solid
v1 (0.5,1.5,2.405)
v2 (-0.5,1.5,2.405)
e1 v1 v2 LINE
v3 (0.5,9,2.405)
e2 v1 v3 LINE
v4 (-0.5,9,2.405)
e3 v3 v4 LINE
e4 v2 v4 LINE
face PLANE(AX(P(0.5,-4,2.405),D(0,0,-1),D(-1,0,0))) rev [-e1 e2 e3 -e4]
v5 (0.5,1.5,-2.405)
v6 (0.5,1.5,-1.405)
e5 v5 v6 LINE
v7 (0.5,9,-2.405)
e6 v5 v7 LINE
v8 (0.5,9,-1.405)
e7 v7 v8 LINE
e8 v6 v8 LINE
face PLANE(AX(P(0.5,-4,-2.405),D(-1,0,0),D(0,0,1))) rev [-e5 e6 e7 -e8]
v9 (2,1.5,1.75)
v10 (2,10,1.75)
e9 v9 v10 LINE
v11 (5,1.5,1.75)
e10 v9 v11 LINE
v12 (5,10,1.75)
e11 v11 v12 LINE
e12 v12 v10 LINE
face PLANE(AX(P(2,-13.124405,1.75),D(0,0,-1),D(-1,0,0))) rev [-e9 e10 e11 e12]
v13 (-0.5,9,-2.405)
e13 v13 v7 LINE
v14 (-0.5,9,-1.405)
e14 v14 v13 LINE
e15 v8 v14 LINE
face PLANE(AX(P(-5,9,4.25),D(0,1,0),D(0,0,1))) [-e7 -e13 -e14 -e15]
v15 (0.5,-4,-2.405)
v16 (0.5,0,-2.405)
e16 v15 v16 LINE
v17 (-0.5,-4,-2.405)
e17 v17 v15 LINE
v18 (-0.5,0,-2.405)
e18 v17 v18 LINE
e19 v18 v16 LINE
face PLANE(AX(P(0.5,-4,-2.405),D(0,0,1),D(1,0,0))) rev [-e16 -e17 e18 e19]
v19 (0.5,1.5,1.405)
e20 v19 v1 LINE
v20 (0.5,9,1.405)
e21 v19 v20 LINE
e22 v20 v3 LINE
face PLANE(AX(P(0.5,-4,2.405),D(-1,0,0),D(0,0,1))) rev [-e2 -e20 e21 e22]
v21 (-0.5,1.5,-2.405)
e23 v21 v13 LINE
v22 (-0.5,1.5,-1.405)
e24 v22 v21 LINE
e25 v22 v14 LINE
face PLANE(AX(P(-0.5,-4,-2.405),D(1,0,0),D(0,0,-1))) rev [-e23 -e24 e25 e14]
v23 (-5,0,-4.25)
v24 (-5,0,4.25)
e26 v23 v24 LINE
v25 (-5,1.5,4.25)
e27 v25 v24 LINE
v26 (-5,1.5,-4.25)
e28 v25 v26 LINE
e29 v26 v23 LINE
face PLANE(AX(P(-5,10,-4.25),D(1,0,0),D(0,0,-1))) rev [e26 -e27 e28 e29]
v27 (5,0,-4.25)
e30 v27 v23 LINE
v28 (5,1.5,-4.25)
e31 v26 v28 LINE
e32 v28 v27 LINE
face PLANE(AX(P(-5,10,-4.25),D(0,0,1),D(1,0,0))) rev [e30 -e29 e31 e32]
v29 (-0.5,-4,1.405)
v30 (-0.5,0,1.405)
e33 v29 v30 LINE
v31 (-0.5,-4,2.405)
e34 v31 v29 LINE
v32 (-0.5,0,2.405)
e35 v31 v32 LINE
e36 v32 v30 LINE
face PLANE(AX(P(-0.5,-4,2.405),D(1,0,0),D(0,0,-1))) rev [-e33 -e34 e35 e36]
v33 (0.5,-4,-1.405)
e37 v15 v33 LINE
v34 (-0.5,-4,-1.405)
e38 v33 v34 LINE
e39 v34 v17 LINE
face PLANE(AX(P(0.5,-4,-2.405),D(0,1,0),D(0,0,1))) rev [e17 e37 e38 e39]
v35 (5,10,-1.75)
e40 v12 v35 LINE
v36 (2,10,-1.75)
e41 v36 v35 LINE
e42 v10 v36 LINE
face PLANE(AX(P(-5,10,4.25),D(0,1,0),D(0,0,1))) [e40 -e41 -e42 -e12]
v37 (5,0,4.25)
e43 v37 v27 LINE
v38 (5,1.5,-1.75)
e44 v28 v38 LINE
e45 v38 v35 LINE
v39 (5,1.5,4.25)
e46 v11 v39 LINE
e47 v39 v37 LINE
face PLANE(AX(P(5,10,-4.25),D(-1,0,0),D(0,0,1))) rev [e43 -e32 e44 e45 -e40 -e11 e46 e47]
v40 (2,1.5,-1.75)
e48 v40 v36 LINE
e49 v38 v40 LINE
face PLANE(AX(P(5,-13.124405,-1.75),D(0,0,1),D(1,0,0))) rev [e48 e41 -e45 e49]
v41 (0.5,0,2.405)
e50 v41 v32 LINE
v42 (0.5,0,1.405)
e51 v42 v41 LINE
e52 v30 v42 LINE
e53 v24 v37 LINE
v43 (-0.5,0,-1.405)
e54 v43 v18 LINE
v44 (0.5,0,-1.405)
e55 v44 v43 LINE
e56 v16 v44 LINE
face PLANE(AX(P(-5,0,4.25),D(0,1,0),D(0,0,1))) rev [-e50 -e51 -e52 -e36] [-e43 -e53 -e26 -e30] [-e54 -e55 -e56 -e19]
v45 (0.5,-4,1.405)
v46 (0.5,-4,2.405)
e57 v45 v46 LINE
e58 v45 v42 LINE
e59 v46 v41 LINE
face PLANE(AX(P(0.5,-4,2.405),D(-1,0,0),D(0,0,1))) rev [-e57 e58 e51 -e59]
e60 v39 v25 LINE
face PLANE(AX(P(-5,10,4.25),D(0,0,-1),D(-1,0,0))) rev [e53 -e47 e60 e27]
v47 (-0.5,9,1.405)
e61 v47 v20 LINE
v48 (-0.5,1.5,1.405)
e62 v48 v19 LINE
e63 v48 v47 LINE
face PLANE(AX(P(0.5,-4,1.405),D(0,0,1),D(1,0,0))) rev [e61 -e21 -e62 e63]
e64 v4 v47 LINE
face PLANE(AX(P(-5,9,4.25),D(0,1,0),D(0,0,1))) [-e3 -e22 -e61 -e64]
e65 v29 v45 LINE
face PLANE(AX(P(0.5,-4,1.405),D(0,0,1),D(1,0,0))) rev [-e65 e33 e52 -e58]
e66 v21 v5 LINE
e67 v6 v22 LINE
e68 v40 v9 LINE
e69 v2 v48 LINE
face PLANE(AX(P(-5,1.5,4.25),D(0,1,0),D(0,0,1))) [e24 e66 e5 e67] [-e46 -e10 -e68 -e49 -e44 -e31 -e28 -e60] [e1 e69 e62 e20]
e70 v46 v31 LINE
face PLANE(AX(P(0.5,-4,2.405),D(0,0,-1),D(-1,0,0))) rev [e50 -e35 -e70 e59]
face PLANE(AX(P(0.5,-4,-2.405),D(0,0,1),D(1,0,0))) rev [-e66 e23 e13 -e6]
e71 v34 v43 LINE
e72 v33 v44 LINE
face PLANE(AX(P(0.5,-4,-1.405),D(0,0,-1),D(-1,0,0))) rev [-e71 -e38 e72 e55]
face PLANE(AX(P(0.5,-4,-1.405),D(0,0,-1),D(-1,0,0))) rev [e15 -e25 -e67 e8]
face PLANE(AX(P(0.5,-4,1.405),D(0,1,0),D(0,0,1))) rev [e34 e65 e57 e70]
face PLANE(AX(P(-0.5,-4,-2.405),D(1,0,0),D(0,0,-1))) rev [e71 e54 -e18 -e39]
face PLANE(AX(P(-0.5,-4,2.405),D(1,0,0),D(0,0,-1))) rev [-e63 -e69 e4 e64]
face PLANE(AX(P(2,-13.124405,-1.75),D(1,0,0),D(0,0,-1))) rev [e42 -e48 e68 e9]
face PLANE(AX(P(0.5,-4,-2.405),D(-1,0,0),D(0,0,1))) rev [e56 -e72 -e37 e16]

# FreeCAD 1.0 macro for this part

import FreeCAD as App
import Part
import Sketcher
Q = App.Units.Quantity


def add_polygon(sketch, points):
    """Adds a closed chain of lines whose ends are joined by coincident constraints."""
    first, n = sketch.GeometryCount, len(points)
    for a, b in zip(points, points[1:] + points[:1]):
        sketch.addGeometry(Part.LineSegment(App.Vector(*a, 0), App.Vector(*b, 0)), False)
    for i in range(n):
        sketch.addConstraint(Sketcher.Constraint("Coincident", first + i, 2, first + (i + 1) % n, 1))

doc = App.newDocument("Part")
body = doc.addObject("PartDesign::Body", "Body")

sketch1 = body.newObject("Sketcher::SketchObject", "Sketch")
sketch1.AttachmentSupport = (doc.getObject("XZ_Plane"), [""])
sketch1.MapMode = "FlatFace"
add_polygon(sketch1, [(-5, -4), (-5, 4), (5, 4), (5, -4)])
sketch1.addConstraint(Sketcher.Constraint("Vertical", 0))
sketch1.addConstraint(Sketcher.Constraint("Horizontal", 1))
sketch1.addConstraint(Sketcher.Constraint("Vertical", 2))
sketch1.addConstraint(Sketcher.Constraint("Horizontal", 3))
sketch1.addConstraint(Sketcher.Constraint("Symmetric", 0, 2, 2, 2, -1, 1))
sketch1.addConstraint(Sketcher.Constraint("DistanceX", 1, 1, 1, 2, Q("10 mm")))
sketch1.addConstraint(Sketcher.Constraint("DistanceY", 0, 1, 0, 2, Q("8.5 mm")))
pad1 = body.newObject("PartDesign::Pad", "Pad")
pad1.Profile = sketch1
pad1.Length = 10
pad1.Reversed = True

sketch2 = body.newObject("Sketcher::SketchObject", "Sketch001")
sketch2.AttachmentSupport = (doc.getObject("XZ_Plane"), [""])
sketch2.MapMode = "FlatFace"
sketch2.AttachmentOffset = App.Placement(App.Vector(0, 0, -10), App.Rotation())
add_polygon(sketch2, [(5, 4.2), (5, 1.8), (2, 1.8), (2, -1.8), (5, -1.8), (5, -4.2), (-5, -4.2), (-5, 4.2)])
sketch2.addConstraint(Sketcher.Constraint("Vertical", 0))
sketch2.addConstraint(Sketcher.Constraint("Horizontal", 1))
sketch2.addConstraint(Sketcher.Constraint("Vertical", 2))
sketch2.addConstraint(Sketcher.Constraint("Horizontal", 3))
sketch2.addConstraint(Sketcher.Constraint("Vertical", 4))
sketch2.addConstraint(Sketcher.Constraint("Horizontal", 5))
sketch2.addConstraint(Sketcher.Constraint("Vertical", 6))
sketch2.addConstraint(Sketcher.Constraint("Horizontal", 7))
sketch2.addConstraint(Sketcher.Constraint("Symmetric", 4, 2, 6, 2, -1, 1))
sketch2.addConstraint(Sketcher.Constraint("Symmetric", 0, 2, 3, 2, -1))
sketch2.addConstraint(Sketcher.Constraint("DistanceX", 1, 2, 1, 1, Q("3 mm")))
sketch2.addConstraint(Sketcher.Constraint("DistanceX", 5, 2, 5, 1, Q("10 mm")))
sketch2.addConstraint(Sketcher.Constraint("DistanceY", 0, 2, 0, 1, Q("2.5 mm")))
sketch2.addConstraint(Sketcher.Constraint("DistanceY", 2, 2, 2, 1, Q("3.5 mm")))
pocket1 = body.newObject("PartDesign::Pocket", "Pocket")
pocket1.Profile = sketch2
pocket1.Length = 8.5
pocket1.Reversed = True

sketch3 = body.newObject("Sketcher::SketchObject", "Sketch002")
sketch3.AttachmentSupport = (doc.getObject("XZ_Plane"), [""])
sketch3.MapMode = "FlatFace"
add_polygon(sketch3, [(-0.5, 2.4), (-0.5, 1.4), (0.5, 1.4), (0.5, 2.4)])
add_polygon(sketch3, [(-0.5, -1.4), (-0.5, -2.4), (0.5, -2.4), (0.5, -1.4)])
sketch3.addConstraint(Sketcher.Constraint("Vertical", 0))
sketch3.addConstraint(Sketcher.Constraint("Horizontal", 1))
sketch3.addConstraint(Sketcher.Constraint("Vertical", 2))
sketch3.addConstraint(Sketcher.Constraint("Horizontal", 3))
sketch3.addConstraint(Sketcher.Constraint("Vertical", 4))
sketch3.addConstraint(Sketcher.Constraint("Horizontal", 5))
sketch3.addConstraint(Sketcher.Constraint("Vertical", 6))
sketch3.addConstraint(Sketcher.Constraint("Horizontal", 7))
sketch3.addConstraint(Sketcher.Constraint("Symmetric", 2, 2, 4, 2, -1, 1))
sketch3.addConstraint(Sketcher.Constraint("Symmetric", 0, 2, 6, 2, -1, 1))
sketch3.addConstraint(Sketcher.Constraint("Vertical", 3, 2, 4, 2))
sketch3.addConstraint(Sketcher.Constraint("Equal", 7, 0))
sketch3.addConstraint(Sketcher.Constraint("DistanceX", 1, 1, 1, 2, Q("1 mm")))
sketch3.addConstraint(Sketcher.Constraint("DistanceY", 4, 2, 0, 2, Q("3.81 mm")))
pad2 = body.newObject("PartDesign::Pad", "Pad001")
pad2.Profile = sketch3
pad2.Type = "TwoLengths"
pad2.Length = 4
pad2.Length2 = 9

doc.recompute()
